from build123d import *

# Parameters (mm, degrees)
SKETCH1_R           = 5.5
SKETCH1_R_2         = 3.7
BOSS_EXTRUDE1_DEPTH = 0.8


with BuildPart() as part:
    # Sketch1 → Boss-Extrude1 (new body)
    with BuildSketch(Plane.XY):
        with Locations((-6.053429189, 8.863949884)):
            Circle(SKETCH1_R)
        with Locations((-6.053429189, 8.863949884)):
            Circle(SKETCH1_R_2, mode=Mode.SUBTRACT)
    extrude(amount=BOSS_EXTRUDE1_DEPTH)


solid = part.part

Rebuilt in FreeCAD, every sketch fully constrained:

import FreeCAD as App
import Part
import Sketcher

V = App.Vector

doc = App.newDocument("Part")
body = doc.addObject("PartDesign::Body", "Body")

# Sketch on XY plane
sketch1 = body.newObject("Sketcher::SketchObject", "Sketch")
sketch1.AttachmentSupport = (doc.getObject("XY_Plane"), [""])
sketch1.MapMode = "FlatFace"
sketch1.addGeometry([
    Part.Circle(V(-6.053429, 8.86395, 0), V(0, 0, 1), 5.5),
    Part.Circle(V(-6.053429, 8.86395, 0), V(0, 0, 1), 3.7),
], False)
sketch1.addConstraint([
    Sketcher.Constraint("Coincident", 1, 3, 0, 3),
    Sketcher.Constraint("Diameter", 0, 11.0),
    Sketcher.Constraint("Diameter", 1, 7.4),
    Sketcher.Constraint("DistanceX", 0, 3, -1, 1, 6.053429),
    Sketcher.Constraint("DistanceY", -1, 1, 0, 3, 8.86395),
])
pad1 = body.newObject("PartDesign::Pad", "Pad")
pad1.Profile = sketch1
pad1.Length = 0.8

doc.recompute()
